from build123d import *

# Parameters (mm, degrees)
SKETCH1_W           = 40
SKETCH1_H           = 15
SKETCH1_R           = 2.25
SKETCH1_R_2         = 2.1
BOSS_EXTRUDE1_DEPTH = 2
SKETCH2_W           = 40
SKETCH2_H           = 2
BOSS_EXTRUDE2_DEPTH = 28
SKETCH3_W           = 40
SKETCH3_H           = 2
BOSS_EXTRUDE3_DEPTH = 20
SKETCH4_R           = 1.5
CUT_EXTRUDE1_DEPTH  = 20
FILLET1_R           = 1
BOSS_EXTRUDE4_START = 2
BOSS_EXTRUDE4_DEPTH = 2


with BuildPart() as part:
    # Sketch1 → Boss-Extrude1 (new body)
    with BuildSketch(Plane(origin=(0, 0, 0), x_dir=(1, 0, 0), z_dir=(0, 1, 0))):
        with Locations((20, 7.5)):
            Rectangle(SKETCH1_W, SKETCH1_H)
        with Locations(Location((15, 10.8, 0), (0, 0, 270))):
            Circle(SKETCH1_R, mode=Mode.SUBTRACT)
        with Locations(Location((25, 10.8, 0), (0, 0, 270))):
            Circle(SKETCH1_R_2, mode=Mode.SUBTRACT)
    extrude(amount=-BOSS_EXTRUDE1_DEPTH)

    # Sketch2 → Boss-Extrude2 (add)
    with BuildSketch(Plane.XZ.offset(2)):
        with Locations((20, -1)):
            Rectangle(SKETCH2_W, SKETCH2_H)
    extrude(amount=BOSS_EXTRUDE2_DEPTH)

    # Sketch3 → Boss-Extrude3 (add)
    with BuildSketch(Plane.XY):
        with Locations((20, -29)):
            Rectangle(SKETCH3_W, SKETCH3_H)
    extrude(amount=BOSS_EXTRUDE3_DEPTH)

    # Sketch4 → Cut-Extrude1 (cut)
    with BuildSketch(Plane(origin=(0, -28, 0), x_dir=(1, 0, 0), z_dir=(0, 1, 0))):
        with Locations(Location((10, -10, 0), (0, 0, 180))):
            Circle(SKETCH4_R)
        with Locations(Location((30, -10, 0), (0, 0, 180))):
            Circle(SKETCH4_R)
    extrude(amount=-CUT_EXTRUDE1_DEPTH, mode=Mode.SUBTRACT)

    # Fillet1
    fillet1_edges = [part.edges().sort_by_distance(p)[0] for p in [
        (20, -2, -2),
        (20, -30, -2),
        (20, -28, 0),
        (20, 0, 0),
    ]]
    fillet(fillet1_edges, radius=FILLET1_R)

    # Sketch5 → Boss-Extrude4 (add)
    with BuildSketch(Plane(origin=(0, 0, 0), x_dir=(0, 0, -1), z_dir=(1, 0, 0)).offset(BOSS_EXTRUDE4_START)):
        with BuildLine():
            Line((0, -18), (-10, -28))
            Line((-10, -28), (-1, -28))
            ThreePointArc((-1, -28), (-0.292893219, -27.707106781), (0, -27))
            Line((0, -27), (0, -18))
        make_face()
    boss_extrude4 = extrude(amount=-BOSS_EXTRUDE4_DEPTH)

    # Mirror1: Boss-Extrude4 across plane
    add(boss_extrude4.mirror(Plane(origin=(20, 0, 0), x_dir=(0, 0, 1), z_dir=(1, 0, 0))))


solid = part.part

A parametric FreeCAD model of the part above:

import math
import FreeCAD as App
import Part
import Sketcher
from FreeCAD import Vector
Q = App.Units.Quantity


def edges_at(feature, points):
    """Names of the edges that pass closest to the given points."""
    edges = feature.Shape.Edges
    near = lambda p: min(range(len(edges)), key=lambda i: edges[i].distToShape(Part.Vertex(*p))[0])
    return sorted({f"Edge{near(p) + 1}" for p in points})


def add_polygon(sketch, points):
    """Adds a closed chain of lines whose ends are joined by coincident constraints."""
    first, n = sketch.GeometryCount, len(points)
    for a, b in zip(points, points[1:] + points[:1]):
        sketch.addGeometry(Part.LineSegment(App.Vector(*a, 0), App.Vector(*b, 0)), False)
    for i in range(n):
        sketch.addConstraint(Sketcher.Constraint("Coincident", first + i, 2, first + (i + 1) % n, 1))

doc = App.newDocument("Part")
body = doc.addObject("PartDesign::Body", "Body")

# Sketch on XZ plane
sketch1 = body.newObject("Sketcher::SketchObject", "Sketch")
sketch1.AttachmentSupport = (doc.getObject("XZ_Plane"), [""])
sketch1.MapMode = "FlatFace"
add_polygon(sketch1, [(0, -15), (0, 0), (40, 0), (40, -15)])  # lines 0-3
sketch1.addGeometry(Part.Circle(Vector(15, -10.8, 0), Vector(0, 0, 1), 2.2), False)  # 4
sketch1.addGeometry(Part.Circle(Vector(25, -10.8, 0), Vector(0, 0, 1), 2.1), False)  # 5
sketch1.addConstraint([
    Sketcher.Constraint("Vertical", 0),
    Sketcher.Constraint("Horizontal", 1),
    Sketcher.Constraint("Vertical", 2),
    Sketcher.Constraint("Horizontal", 3),
    Sketcher.Constraint("Coincident", 0, 2, -1, 1),
    Sketcher.Constraint("Horizontal", 4, 3, 5, 3),
    Sketcher.Constraint("Diameter", 4, Q("4.5 mm")),
    Sketcher.Constraint("Diameter", 5, Q("4.2 mm")),
    Sketcher.Constraint("DistanceX", 1, 1, 1, 2, Q("40 mm")),
    Sketcher.Constraint("DistanceY", 0, 1, 0, 2, Q("15 mm")),
    Sketcher.Constraint("DistanceX", -1, 1, 4, 3, Q("15 mm")),
    Sketcher.Constraint("DistanceX", -1, 1, 5, 3, Q("25 mm")),
    Sketcher.Constraint("DistanceY", 4, 3, -1, 1, Q("10.8 mm")),
])
pad1 = body.newObject("PartDesign::Pad", "Pad")
pad1.Profile = sketch1
pad1.Length = 2

# Sketch on XZ plane
sketch2 = body.newObject("Sketcher::SketchObject", "Sketch001")
sketch2.AttachmentSupport = (doc.getObject("XZ_Plane"), [""])
sketch2.MapMode = "FlatFace"
sketch2.AttachmentOffset = App.Placement(Vector(0, 0, 2), App.Rotation())
add_polygon(sketch2, [(0, 0), (0, -2), (40, -2), (40, 0)])  # lines 0-3
sketch2.addConstraint([
    Sketcher.Constraint("Vertical", 0),
    Sketcher.Constraint("Horizontal", 1),
    Sketcher.Constraint("Vertical", 2),
    Sketcher.Constraint("Horizontal", 3),
    Sketcher.Constraint("Coincident", 3, 2, -1, 1),
    Sketcher.Constraint("DistanceX", 1, 1, 1, 2, Q("40 mm")),
    Sketcher.Constraint("DistanceY", 0, 2, 0, 1, Q("2 mm")),
])
pad2 = body.newObject("PartDesign::Pad", "Pad001")
pad2.Profile = sketch2
pad2.Length = 28

# Sketch on XY plane
sketch3 = body.newObject("Sketcher::SketchObject", "Sketch002")
sketch3.AttachmentSupport = (doc.getObject("XY_Plane"), [""])
sketch3.MapMode = "FlatFace"
add_polygon(sketch3, [(0, -28), (0, -30), (40, -30), (40, -28)])  # lines 0-3
sketch3.addConstraint([
    Sketcher.Constraint("Vertical", 0),
    Sketcher.Constraint("Horizontal", 1),
    Sketcher.Constraint("Vertical", 2),
    Sketcher.Constraint("Horizontal", 3),
    Sketcher.Constraint("PointOnObject", 0, 2, -2),
    Sketcher.Constraint("DistanceX", 1, 1, 1, 2, Q("40 mm")),
    Sketcher.Constraint("DistanceY", 0, 2, 0, 1, Q("2 mm")),
    Sketcher.Constraint("DistanceY", 0, 2, -1, 1, Q("30 mm")),
])
pad3 = body.newObject("PartDesign::Pad", "Pad002")
pad3.Profile = sketch3
pad3.Length = 20

# Sketch on XZ plane
sketch4 = body.newObject("Sketcher::SketchObject", "Sketch003")
sketch4.AttachmentSupport = (doc.getObject("XZ_Plane"), [""])
sketch4.MapMode = "FlatFace"
sketch4.AttachmentOffset = App.Placement(Vector(0, 0, 28), App.Rotation())
sketch4.addGeometry([
    Part.Circle(Vector(10, 10, 0), Vector(0, 0, 1), 1.5),
    Part.Circle(Vector(30, 10, 0), Vector(0, 0, 1), 1.5),
], False)
sketch4.addConstraint([
    Sketcher.Constraint("Equal", 0, 1),
    Sketcher.Constraint("Horizontal", 0, 3, 1, 3),
    Sketcher.Constraint("Diameter", 0, Q("3 mm")),
    Sketcher.Constraint("DistanceX", -1, 1, 0, 3, Q("10 mm")),
    Sketcher.Constraint("DistanceY", -1, 1, 0, 3, Q("10 mm")),
    Sketcher.Constraint("DistanceX", -1, 1, 1, 3, Q("30 mm")),
])
pocket1 = body.newObject("PartDesign::Pocket", "Pocket")
pocket1.Profile = sketch4
pocket1.Length = 20
pocket1.Reversed = True
doc.recompute()

fillet = body.newObject("PartDesign::Fillet", "Fillet")
fillet.Base = (pocket1, edges_at(pocket1, [
    (20, -2, -2),
    (20, -30, -2),
    (20, -28, 0),
    (20, 0, 0),
]))
fillet.Radius = 1

# Sketch on YZ plane
sketch5 = body.newObject("Sketcher::SketchObject", "Sketch004")
sketch5.AttachmentSupport = (doc.getObject("YZ_Plane"), [""])
sketch5.MapMode = "FlatFace"
sketch5.AttachmentOffset = App.Placement(Vector(0, 0, 2), App.Rotation())
sketch5.addGeometry([
    Part.LineSegment(Vector(-18, 0, 0), Vector(-28, 10, 0)),
    Part.LineSegment(Vector(-28, 10, 0), Vector(-28, 1, 0)),
    Part.ArcOfCircle(Part.Circle(Vector(-27, 1, 0), Vector(0, 0, 1), 1), math.radians(-180), math.radians(-90)),
    Part.LineSegment(Vector(-27, 0, 0), Vector(-18, 0, 0)),
], False)
sketch5.addConstraint([
    Sketcher.Constraint("Coincident", 0, 2, 1, 1),
    Sketcher.Constraint("Tangent", 1, 2, 2, 1),
    Sketcher.Constraint("Tangent", 2, 2, 3, 1),
    Sketcher.Constraint("Coincident", 3, 2, 0, 1),
    Sketcher.Constraint("Vertical", 1),
    Sketcher.Constraint("Horizontal", 3),
    Sketcher.Constraint("PointOnObject", 2, 2, -1),
    Sketcher.Constraint("Equal", 3, 1),
    Sketcher.Constraint("Radius", 2, Q("1 mm")),
    Sketcher.Constraint("DistanceX", 3, 1, 3, 2, Q("9 mm")),
    Sketcher.Constraint("DistanceX", 2, 3, -1, 1, Q("27 mm")),
])
pad4 = body.newObject("PartDesign::Pad", "Pad003")
pad4.Profile = sketch5
pad4.Length = 2
pad4.Reversed = True
doc.recompute()

datumplane = body.newObject("PartDesign::Plane", "DatumPlane")
datumplane.AttachmentSupport = (doc.getObject("YZ_Plane"), [""])
datumplane.MapMode = "FlatFace"
datumplane.AttachmentOffset = App.Placement(Vector(0, 0, 20), App.Rotation())
mirrored = body.newObject("PartDesign::Mirrored", "Mirrored")
mirrored.Originals = [pad4]
mirrored.MirrorPlane = (datumplane, [""])
body.Tip = mirrored

doc.recompute()
